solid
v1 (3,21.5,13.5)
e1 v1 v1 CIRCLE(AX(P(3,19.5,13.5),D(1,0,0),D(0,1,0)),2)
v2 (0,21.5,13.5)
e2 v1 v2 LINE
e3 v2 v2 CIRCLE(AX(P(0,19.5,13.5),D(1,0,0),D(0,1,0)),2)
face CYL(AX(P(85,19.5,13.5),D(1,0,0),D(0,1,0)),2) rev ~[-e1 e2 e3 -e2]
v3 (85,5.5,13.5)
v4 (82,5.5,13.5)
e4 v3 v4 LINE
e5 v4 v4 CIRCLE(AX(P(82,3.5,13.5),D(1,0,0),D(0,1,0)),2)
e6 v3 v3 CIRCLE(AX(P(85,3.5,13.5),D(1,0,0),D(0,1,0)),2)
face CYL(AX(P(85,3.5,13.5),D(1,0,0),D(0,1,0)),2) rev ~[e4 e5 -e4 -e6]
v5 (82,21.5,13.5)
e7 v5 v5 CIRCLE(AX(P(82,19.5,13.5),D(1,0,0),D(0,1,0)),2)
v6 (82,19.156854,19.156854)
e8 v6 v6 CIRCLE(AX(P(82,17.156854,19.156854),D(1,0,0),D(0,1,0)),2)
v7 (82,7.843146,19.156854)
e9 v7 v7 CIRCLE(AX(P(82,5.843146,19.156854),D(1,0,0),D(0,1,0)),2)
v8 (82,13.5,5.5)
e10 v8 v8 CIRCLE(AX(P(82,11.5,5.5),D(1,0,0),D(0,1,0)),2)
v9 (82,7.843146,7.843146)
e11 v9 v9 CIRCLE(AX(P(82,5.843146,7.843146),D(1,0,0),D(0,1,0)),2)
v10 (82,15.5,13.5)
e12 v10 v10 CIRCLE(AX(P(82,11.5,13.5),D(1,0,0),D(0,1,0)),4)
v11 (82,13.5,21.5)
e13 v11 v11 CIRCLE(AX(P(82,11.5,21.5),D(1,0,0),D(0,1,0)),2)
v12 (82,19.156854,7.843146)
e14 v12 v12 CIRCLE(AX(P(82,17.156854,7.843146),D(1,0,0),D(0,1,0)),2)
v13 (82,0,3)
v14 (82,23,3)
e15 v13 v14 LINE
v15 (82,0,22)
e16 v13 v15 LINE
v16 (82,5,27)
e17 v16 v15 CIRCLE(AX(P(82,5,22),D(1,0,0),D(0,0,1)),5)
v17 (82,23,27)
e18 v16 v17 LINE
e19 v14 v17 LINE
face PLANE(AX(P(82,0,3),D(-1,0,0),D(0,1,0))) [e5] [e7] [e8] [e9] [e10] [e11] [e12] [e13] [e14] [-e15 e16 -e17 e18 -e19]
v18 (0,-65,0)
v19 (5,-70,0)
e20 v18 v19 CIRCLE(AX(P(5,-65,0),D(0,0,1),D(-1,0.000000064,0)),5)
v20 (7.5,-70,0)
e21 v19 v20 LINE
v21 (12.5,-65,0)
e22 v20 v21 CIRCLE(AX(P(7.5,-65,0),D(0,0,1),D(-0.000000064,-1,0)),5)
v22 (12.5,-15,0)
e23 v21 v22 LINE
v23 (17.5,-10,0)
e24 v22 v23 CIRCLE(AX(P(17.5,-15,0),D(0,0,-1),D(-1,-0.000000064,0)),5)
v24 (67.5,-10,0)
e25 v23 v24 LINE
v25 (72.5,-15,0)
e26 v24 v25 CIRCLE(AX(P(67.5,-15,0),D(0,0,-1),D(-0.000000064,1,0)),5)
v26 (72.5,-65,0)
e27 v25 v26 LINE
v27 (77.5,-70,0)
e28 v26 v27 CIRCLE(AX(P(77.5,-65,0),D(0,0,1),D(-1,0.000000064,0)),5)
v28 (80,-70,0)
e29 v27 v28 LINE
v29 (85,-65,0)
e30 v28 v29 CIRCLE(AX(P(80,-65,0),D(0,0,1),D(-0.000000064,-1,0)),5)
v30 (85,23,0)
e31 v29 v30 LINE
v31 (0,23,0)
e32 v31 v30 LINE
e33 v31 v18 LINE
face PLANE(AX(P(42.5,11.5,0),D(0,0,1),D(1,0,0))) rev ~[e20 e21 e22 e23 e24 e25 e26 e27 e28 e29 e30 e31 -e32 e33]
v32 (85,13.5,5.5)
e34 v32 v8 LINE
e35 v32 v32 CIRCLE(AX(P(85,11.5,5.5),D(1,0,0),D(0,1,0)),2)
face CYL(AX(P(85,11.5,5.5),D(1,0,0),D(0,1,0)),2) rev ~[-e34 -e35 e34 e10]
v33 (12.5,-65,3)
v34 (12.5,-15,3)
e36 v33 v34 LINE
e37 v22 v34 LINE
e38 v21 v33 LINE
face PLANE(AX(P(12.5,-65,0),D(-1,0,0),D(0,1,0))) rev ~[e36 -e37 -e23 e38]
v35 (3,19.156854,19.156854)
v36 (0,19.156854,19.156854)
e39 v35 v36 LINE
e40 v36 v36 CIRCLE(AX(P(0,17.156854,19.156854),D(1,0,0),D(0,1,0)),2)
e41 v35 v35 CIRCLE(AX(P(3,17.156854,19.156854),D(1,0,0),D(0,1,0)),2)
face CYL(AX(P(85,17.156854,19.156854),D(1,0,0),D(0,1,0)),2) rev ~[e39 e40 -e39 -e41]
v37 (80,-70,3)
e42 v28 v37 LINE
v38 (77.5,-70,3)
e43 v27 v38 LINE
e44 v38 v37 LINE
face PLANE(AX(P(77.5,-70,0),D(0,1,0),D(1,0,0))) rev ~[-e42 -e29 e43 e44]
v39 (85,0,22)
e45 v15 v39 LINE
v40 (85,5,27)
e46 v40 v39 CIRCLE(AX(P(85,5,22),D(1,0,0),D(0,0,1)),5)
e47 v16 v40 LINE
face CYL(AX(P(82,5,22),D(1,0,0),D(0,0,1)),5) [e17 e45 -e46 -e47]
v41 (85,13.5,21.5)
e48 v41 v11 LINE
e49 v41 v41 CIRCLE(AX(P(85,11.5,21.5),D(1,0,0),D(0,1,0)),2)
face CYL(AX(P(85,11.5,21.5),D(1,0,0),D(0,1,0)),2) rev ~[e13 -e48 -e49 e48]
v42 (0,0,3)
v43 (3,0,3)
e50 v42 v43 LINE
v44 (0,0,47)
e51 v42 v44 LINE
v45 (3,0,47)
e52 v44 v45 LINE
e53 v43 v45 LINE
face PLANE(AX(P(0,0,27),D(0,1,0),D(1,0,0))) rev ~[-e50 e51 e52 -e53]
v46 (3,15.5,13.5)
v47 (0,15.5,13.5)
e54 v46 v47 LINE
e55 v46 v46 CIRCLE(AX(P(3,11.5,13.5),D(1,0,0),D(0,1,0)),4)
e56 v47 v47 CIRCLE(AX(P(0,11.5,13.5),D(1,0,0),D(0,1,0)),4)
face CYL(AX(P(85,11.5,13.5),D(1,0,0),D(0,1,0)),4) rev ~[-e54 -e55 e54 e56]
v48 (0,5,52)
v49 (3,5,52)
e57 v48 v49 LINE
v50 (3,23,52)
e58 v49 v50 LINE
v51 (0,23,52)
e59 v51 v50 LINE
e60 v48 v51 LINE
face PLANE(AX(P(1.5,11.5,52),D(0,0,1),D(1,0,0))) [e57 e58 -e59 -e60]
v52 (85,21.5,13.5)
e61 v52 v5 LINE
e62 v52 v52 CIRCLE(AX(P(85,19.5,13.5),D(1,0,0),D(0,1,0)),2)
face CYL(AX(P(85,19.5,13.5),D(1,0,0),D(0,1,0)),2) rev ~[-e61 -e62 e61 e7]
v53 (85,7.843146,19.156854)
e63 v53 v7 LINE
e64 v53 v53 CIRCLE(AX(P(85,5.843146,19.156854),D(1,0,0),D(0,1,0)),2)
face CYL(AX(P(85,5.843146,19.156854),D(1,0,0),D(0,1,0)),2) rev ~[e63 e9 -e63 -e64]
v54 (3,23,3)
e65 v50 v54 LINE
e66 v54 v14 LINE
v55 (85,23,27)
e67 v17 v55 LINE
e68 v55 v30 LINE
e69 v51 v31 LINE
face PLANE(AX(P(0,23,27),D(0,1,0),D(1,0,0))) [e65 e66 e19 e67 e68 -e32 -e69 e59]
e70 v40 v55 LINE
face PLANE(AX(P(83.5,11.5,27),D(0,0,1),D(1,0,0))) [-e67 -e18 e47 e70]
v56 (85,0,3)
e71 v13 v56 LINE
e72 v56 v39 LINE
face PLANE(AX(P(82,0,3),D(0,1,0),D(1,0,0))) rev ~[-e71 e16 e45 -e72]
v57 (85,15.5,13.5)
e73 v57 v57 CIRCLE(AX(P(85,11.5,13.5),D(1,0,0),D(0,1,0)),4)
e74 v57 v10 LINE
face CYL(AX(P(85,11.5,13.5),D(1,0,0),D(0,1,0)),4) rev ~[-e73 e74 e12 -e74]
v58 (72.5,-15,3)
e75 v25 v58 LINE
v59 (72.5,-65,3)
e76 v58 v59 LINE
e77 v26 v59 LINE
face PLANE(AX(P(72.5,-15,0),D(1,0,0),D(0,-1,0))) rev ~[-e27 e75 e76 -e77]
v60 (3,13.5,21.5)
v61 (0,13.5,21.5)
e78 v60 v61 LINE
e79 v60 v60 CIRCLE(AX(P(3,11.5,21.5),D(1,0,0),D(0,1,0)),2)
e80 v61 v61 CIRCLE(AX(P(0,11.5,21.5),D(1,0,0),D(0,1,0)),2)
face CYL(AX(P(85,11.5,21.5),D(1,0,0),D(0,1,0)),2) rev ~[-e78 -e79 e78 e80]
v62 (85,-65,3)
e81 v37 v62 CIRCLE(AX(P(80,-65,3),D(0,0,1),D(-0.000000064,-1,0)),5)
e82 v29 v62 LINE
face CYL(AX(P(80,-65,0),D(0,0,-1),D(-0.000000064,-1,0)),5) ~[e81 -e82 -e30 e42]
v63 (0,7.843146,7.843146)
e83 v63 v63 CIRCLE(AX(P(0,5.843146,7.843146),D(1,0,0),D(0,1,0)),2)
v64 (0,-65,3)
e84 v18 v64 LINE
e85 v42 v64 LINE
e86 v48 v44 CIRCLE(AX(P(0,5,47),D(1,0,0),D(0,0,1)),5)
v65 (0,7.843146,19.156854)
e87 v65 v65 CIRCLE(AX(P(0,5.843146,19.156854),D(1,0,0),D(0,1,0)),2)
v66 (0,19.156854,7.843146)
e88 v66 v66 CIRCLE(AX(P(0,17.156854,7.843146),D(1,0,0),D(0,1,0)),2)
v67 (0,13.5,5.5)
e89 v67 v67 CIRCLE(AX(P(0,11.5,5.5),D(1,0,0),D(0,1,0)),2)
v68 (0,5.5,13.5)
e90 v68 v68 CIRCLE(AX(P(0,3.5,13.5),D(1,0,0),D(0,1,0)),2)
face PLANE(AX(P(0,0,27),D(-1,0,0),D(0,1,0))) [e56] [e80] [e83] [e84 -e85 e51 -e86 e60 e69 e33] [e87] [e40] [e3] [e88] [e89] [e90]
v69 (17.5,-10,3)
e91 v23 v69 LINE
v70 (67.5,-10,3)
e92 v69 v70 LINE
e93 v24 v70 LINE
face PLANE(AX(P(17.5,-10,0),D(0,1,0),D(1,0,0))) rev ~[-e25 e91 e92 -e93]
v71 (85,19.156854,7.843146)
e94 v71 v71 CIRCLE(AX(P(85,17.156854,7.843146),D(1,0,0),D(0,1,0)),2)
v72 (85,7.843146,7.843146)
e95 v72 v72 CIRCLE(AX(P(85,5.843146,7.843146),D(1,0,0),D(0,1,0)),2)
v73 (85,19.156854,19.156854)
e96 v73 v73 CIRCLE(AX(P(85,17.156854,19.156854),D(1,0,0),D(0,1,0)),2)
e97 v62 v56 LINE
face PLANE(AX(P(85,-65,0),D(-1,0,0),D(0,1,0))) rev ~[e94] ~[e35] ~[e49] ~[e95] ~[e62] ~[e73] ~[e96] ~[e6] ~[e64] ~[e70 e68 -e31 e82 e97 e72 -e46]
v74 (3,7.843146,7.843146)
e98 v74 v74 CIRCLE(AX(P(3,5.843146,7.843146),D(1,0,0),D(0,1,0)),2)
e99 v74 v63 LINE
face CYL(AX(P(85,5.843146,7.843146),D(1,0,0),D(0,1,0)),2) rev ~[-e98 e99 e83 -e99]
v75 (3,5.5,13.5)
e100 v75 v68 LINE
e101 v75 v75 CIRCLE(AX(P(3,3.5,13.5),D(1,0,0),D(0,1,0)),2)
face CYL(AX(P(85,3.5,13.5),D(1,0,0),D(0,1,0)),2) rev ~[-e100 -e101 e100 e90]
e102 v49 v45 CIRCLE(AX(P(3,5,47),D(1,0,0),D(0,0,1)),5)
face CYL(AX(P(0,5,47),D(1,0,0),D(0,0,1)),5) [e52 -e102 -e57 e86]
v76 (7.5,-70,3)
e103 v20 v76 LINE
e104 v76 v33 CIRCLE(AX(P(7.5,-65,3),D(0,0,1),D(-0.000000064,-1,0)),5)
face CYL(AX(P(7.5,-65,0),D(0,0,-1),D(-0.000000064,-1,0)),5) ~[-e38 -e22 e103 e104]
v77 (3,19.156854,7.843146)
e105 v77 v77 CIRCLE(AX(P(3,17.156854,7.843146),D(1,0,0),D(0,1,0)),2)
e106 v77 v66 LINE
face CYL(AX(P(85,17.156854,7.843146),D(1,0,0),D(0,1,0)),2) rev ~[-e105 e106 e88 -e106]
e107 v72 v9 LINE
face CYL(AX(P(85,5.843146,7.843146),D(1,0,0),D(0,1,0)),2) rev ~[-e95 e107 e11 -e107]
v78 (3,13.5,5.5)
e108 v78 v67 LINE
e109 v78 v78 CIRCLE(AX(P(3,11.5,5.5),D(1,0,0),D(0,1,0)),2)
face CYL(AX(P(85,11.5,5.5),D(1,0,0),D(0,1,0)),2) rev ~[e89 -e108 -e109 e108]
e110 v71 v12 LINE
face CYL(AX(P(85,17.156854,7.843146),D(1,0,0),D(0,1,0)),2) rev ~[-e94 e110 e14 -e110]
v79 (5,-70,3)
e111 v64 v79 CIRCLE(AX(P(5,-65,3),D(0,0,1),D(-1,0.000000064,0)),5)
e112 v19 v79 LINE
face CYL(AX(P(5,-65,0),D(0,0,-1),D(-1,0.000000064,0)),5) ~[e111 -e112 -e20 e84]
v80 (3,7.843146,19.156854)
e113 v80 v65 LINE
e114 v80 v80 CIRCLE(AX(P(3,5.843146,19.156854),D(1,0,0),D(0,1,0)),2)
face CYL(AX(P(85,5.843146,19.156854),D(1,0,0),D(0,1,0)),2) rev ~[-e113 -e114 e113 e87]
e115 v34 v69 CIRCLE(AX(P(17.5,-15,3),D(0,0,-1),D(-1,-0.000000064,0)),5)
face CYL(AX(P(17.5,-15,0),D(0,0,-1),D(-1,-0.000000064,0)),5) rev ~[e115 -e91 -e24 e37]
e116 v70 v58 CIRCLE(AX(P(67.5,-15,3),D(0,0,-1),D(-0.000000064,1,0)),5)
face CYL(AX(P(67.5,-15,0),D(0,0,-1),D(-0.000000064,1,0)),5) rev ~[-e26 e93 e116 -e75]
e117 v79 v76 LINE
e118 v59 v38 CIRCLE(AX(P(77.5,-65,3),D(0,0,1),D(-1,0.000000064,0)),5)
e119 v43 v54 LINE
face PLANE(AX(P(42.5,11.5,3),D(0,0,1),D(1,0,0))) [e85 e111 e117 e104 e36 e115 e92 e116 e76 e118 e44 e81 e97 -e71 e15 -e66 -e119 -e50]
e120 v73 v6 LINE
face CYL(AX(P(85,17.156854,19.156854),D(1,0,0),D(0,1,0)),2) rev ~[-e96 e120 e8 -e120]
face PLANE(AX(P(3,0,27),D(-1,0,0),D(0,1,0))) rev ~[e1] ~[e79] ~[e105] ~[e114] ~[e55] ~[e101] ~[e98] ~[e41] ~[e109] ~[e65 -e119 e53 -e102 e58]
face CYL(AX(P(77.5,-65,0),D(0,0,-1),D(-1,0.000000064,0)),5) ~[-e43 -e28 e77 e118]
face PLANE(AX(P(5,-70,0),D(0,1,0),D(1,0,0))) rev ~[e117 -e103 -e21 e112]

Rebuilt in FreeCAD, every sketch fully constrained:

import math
import FreeCAD as App
import Part
import Sketcher


def edges_at(feature, points):
    """Names of the edges that pass closest to the given points."""
    edges = feature.Shape.Edges
    near = lambda p: min(range(len(edges)), key=lambda i: edges[i].distToShape(Part.Vertex(*p))[0])
    return sorted({f"Edge{near(p) + 1}" for p in points})


def add_polygon(sketch, points):
    """Adds a closed chain of lines whose ends are joined by coincident constraints."""
    first, n = sketch.GeometryCount, len(points)
    for a, b in zip(points, points[1:] + points[:1]):
        sketch.addGeometry(Part.LineSegment(App.Vector(*a, 0), App.Vector(*b, 0)), False)
    for i in range(n):
        sketch.addConstraint(Sketcher.Constraint("Coincident", first + i, 2, first + (i + 1) % n, 1))

doc = App.newDocument("Part")
body = doc.addObject("PartDesign::Body", "Body")

sketch1 = doc.addObject("Sketcher::SketchObject", "Sketch")
body.addObject(sketch1)
sketch1.AttachmentSupport = (doc.XY_Plane, [""])
sketch1.MapMode = "FlatFace"
sketch1.addGeometry([
    Part.LineSegment(App.Vector(0, 23, 0), App.Vector(0, -65, 0)),
    Part.ArcOfCircle(Part.Circle(App.Vector(5, -65, 0), App.Vector(0, 0, 1), 5), math.radians(180), math.radians(270)),
    Part.LineSegment(App.Vector(5, -70, 0), App.Vector(7.5, -70, 0)),
    Part.ArcOfCircle(Part.Circle(App.Vector(7.5, -65, 0), App.Vector(0, 0, 1), 5), math.radians(-90), math.radians(0)),
    Part.LineSegment(App.Vector(12.5, -65, 0), App.Vector(12.5, -15, 0)),
    Part.ArcOfCircle(Part.Circle(App.Vector(17.5, -15, 0), App.Vector(0, 0, 1), 5), math.radians(90), math.radians(180)),
    Part.LineSegment(App.Vector(17.5, -10, 0), App.Vector(67.5, -10, 0)),
    Part.ArcOfCircle(Part.Circle(App.Vector(67.5, -15, 0), App.Vector(0, 0, 1), 5), math.radians(0), math.radians(90)),
    Part.LineSegment(App.Vector(72.5, -15, 0), App.Vector(72.5, -65, 0)),
    Part.ArcOfCircle(Part.Circle(App.Vector(77.5, -65, 0), App.Vector(0, 0, 1), 5), math.radians(180), math.radians(270)),
    Part.LineSegment(App.Vector(77.5, -70, 0), App.Vector(80, -70, 0)),
    Part.ArcOfCircle(Part.Circle(App.Vector(80, -65, 0), App.Vector(0, 0, 1), 5), math.radians(-90), math.radians(0)),
    Part.LineSegment(App.Vector(85, -65, 0), App.Vector(85, 23, 0)),
    Part.LineSegment(App.Vector(85, 23, 0), App.Vector(0, 23, 0)),
], False)
sketch1.addConstraint([
    Sketcher.Constraint("Tangent", 0, 2, 1, 1),
    Sketcher.Constraint("Tangent", 1, 2, 2, 1),
    Sketcher.Constraint("Tangent", 2, 2, 3, 1),
    Sketcher.Constraint("Tangent", 3, 2, 4, 1),
    Sketcher.Constraint("Tangent", 4, 2, 5, 2),
    Sketcher.Constraint("Tangent", 5, 1, 6, 1),
    Sketcher.Constraint("Tangent", 6, 2, 7, 2),
    Sketcher.Constraint("Tangent", 7, 1, 8, 1),
    Sketcher.Constraint("Tangent", 8, 2, 9, 1),
    Sketcher.Constraint("Tangent", 9, 2, 10, 1),
    Sketcher.Constraint("Tangent", 10, 2, 11, 1),
    Sketcher.Constraint("Tangent", 11, 2, 12, 1),
    Sketcher.Constraint("Coincident", 12, 2, 13, 1),
    Sketcher.Constraint("Coincident", 13, 2, 0, 1),
    Sketcher.Constraint("Vertical", 0),
    Sketcher.Constraint("Horizontal", 2),
    Sketcher.Constraint("Vertical", 4),
    Sketcher.Constraint("Horizontal", 6),
    Sketcher.Constraint("Vertical", 8),
    Sketcher.Constraint("Horizontal", 10),
    Sketcher.Constraint("Vertical", 12),
    Sketcher.Constraint("Horizontal", 13),
    Sketcher.Constraint("Equal", 1, 3),
    Sketcher.Constraint("Equal", 3, 5),
    Sketcher.Constraint("Equal", 5, 7),
    Sketcher.Constraint("Equal", 7, 9),
    Sketcher.Constraint("Equal", 9, 11),
    Sketcher.Constraint("PointOnObject", 0, 2, -2),
    Sketcher.Constraint("Horizontal", 3, 3, 9, 3),
    Sketcher.Constraint("Equal", 2, 10),
    Sketcher.Constraint("Equal", 6, 4),
    Sketcher.Constraint("Radius", 1, 5.0),
    Sketcher.Constraint("DistanceX", 6, 1, 6, 2, 50.0),
    Sketcher.Constraint("DistanceX", 13, 2, 13, 1, 85.0),
    Sketcher.Constraint("DistanceY", 0, 2, 0, 1, 88.0),
    Sketcher.Constraint("DistanceY", 1, 3, -1, 1, 65.0),
])
pad1 = doc.addObject("PartDesign::Pad", "Pad")
body.addObject(pad1)
pad1.Profile = sketch1
pad1.Length = 3

sketch2 = doc.addObject("Sketcher::SketchObject", "Sketch001")
body.addObject(sketch2)
sketch2.AttachmentSupport = (doc.XY_Plane, [""])
sketch2.MapMode = "FlatFace"
sketch2.AttachmentOffset = App.Placement(App.Vector(0, 0, 3), App.Rotation())
add_polygon(sketch2, [(0, 23), (0, 0), (3, 0), (3, 23)])
add_polygon(sketch2, [(82, 23), (82, 0), (85, 0), (85, 23)])
sketch2.addConstraint([
    Sketcher.Constraint("Vertical", 0),
    Sketcher.Constraint("Horizontal", 1),
    Sketcher.Constraint("Vertical", 2),
    Sketcher.Constraint("Horizontal", 3),
    Sketcher.Constraint("Vertical", 4),
    Sketcher.Constraint("Horizontal", 5),
    Sketcher.Constraint("Vertical", 6),
    Sketcher.Constraint("Horizontal", 7),
    Sketcher.Constraint("Coincident", 0, 2, -1, 1),
    Sketcher.Constraint("PointOnObject", 4, 2, -1),
    Sketcher.Constraint("Horizontal", 3, 2, 6, 2),
    Sketcher.Constraint("Equal", 3, 5),
    Sketcher.Constraint("DistanceX", 1, 1, 1, 2, 3.0),
    Sketcher.Constraint("DistanceY", 0, 2, 0, 1, 23.0),
    Sketcher.Constraint("DistanceX", -1, 1, 4, 2, 82.0),
])
pad2 = doc.addObject("PartDesign::Pad", "Pad001")
body.addObject(pad2)
pad2.Profile = sketch2
pad2.Length = 24

sketch3 = doc.addObject("Sketcher::SketchObject", "Sketch002")
body.addObject(sketch3)
sketch3.AttachmentSupport = (doc.XY_Plane, [""])
sketch3.MapMode = "FlatFace"
sketch3.AttachmentOffset = App.Placement(App.Vector(0, 0, 27), App.Rotation())
add_polygon(sketch3, [(0, 23), (0, 0), (3, 0), (3, 23)])
sketch3.addConstraint([
    Sketcher.Constraint("Vertical", 0),
    Sketcher.Constraint("Horizontal", 1),
    Sketcher.Constraint("Vertical", 2),
    Sketcher.Constraint("Horizontal", 3),
    Sketcher.Constraint("Coincident", 0, 2, -1, 1),
    Sketcher.Constraint("DistanceX", 1, 1, 1, 2, 3.0),
    Sketcher.Constraint("DistanceY", 0, 2, 0, 1, 23.0),
])
pad3 = doc.addObject("PartDesign::Pad", "Pad002")
body.addObject(pad3)
pad3.Profile = sketch3
pad3.Length = 25

sketch4 = doc.addObject("Sketcher::SketchObject", "Sketch003")
body.addObject(sketch4)
sketch4.AttachmentSupport = (doc.YZ_Plane, [""])
sketch4.MapMode = "FlatFace"
sketch4.AttachmentOffset = App.Placement(App.Vector(0, 0, 85), App.Rotation())
sketch4.addGeometry([
    Part.Circle(App.Vector(11.5, 13.5, 0), App.Vector(0, 0, 1), 4),
    Part.Circle(App.Vector(19.5, 13.5, 0), App.Vector(0, 0, 1), 2),
    Part.Circle(App.Vector(17.2, 19.2, 0), App.Vector(0, 0, 1), 2),
    Part.Circle(App.Vector(11.5, 21.5, 0), App.Vector(0, 0, 1), 2),
    Part.Circle(App.Vector(5.8, 19.2, 0), App.Vector(0, 0, 1), 2),
    Part.Circle(App.Vector(3.5, 13.5, 0), App.Vector(0, 0, 1), 2),
    Part.Circle(App.Vector(5.8, 7.8, 0), App.Vector(0, 0, 1), 2),
    Part.Circle(App.Vector(11.5, 5.5, 0), App.Vector(0, 0, 1), 2),
    Part.Circle(App.Vector(17.2, 7.8, 0), App.Vector(0, 0, 1), 2),
], False)
sketch4.addConstraint([
    Sketcher.Constraint("Equal", 1, 2),
    Sketcher.Constraint("Equal", 2, 3),
    Sketcher.Constraint("Equal", 3, 4),
    Sketcher.Constraint("Equal", 4, 5),
    Sketcher.Constraint("Equal", 5, 6),
    Sketcher.Constraint("Equal", 6, 7),
    Sketcher.Constraint("Equal", 7, 8),
    Sketcher.Constraint("Horizontal", 0, 3, 1, 3),
    Sketcher.Constraint("Horizontal", 2, 3, 4, 3),
    Sketcher.Constraint("Horizontal", 1, 3, 5, 3),
    Sketcher.Constraint("Horizontal", 6, 3, 8, 3),
    Sketcher.Constraint("Vertical", 0, 3, 3, 3),
    Sketcher.Constraint("Vertical", 4, 3, 6, 3),
    Sketcher.Constraint("Vertical", 3, 3, 7, 3),
    Sketcher.Constraint("Vertical", 2, 3, 8, 3),
    Sketcher.Constraint("Diameter", 0, 8.0),
    Sketcher.Constraint("Diameter", 1, 4.0),
    Sketcher.Constraint("DistanceX", 0, 3, 1, 3, 8.0),
    Sketcher.Constraint("DistanceY", 0, 3, 3, 3, 8.0),
    Sketcher.Constraint("DistanceX", 5, 3, 0, 3, 8.0),
    Sketcher.Constraint("DistanceY", 7, 3, 0, 3, 8.0),
    Sketcher.Constraint("DistanceX", -1, 1, 0, 3, 11.5),
    Sketcher.Constraint("DistanceY", -1, 1, 0, 3, 13.5),
    Sketcher.Constraint("DistanceX", -1, 1, 2, 3, 17.156854),
    Sketcher.Constraint("DistanceY", -1, 1, 2, 3, 19.156854),
    Sketcher.Constraint("DistanceX", -1, 1, 4, 3, 5.843146),
    Sketcher.Constraint("DistanceY", -1, 1, 6, 3, 7.843146),
])
pocket1 = doc.addObject("PartDesign::Pocket", "Pocket")
body.addObject(pocket1)
pocket1.Profile = sketch4
pocket1.Length = 100
doc.recompute()

fillet = doc.addObject("PartDesign::Fillet", "Fillet")
body.addObject(fillet)
fillet.Base = (pocket1, edges_at(pocket1, [(1.5, 0, 52), (83.5, 0, 27)]))
fillet.Radius = 5

doc.recompute()
